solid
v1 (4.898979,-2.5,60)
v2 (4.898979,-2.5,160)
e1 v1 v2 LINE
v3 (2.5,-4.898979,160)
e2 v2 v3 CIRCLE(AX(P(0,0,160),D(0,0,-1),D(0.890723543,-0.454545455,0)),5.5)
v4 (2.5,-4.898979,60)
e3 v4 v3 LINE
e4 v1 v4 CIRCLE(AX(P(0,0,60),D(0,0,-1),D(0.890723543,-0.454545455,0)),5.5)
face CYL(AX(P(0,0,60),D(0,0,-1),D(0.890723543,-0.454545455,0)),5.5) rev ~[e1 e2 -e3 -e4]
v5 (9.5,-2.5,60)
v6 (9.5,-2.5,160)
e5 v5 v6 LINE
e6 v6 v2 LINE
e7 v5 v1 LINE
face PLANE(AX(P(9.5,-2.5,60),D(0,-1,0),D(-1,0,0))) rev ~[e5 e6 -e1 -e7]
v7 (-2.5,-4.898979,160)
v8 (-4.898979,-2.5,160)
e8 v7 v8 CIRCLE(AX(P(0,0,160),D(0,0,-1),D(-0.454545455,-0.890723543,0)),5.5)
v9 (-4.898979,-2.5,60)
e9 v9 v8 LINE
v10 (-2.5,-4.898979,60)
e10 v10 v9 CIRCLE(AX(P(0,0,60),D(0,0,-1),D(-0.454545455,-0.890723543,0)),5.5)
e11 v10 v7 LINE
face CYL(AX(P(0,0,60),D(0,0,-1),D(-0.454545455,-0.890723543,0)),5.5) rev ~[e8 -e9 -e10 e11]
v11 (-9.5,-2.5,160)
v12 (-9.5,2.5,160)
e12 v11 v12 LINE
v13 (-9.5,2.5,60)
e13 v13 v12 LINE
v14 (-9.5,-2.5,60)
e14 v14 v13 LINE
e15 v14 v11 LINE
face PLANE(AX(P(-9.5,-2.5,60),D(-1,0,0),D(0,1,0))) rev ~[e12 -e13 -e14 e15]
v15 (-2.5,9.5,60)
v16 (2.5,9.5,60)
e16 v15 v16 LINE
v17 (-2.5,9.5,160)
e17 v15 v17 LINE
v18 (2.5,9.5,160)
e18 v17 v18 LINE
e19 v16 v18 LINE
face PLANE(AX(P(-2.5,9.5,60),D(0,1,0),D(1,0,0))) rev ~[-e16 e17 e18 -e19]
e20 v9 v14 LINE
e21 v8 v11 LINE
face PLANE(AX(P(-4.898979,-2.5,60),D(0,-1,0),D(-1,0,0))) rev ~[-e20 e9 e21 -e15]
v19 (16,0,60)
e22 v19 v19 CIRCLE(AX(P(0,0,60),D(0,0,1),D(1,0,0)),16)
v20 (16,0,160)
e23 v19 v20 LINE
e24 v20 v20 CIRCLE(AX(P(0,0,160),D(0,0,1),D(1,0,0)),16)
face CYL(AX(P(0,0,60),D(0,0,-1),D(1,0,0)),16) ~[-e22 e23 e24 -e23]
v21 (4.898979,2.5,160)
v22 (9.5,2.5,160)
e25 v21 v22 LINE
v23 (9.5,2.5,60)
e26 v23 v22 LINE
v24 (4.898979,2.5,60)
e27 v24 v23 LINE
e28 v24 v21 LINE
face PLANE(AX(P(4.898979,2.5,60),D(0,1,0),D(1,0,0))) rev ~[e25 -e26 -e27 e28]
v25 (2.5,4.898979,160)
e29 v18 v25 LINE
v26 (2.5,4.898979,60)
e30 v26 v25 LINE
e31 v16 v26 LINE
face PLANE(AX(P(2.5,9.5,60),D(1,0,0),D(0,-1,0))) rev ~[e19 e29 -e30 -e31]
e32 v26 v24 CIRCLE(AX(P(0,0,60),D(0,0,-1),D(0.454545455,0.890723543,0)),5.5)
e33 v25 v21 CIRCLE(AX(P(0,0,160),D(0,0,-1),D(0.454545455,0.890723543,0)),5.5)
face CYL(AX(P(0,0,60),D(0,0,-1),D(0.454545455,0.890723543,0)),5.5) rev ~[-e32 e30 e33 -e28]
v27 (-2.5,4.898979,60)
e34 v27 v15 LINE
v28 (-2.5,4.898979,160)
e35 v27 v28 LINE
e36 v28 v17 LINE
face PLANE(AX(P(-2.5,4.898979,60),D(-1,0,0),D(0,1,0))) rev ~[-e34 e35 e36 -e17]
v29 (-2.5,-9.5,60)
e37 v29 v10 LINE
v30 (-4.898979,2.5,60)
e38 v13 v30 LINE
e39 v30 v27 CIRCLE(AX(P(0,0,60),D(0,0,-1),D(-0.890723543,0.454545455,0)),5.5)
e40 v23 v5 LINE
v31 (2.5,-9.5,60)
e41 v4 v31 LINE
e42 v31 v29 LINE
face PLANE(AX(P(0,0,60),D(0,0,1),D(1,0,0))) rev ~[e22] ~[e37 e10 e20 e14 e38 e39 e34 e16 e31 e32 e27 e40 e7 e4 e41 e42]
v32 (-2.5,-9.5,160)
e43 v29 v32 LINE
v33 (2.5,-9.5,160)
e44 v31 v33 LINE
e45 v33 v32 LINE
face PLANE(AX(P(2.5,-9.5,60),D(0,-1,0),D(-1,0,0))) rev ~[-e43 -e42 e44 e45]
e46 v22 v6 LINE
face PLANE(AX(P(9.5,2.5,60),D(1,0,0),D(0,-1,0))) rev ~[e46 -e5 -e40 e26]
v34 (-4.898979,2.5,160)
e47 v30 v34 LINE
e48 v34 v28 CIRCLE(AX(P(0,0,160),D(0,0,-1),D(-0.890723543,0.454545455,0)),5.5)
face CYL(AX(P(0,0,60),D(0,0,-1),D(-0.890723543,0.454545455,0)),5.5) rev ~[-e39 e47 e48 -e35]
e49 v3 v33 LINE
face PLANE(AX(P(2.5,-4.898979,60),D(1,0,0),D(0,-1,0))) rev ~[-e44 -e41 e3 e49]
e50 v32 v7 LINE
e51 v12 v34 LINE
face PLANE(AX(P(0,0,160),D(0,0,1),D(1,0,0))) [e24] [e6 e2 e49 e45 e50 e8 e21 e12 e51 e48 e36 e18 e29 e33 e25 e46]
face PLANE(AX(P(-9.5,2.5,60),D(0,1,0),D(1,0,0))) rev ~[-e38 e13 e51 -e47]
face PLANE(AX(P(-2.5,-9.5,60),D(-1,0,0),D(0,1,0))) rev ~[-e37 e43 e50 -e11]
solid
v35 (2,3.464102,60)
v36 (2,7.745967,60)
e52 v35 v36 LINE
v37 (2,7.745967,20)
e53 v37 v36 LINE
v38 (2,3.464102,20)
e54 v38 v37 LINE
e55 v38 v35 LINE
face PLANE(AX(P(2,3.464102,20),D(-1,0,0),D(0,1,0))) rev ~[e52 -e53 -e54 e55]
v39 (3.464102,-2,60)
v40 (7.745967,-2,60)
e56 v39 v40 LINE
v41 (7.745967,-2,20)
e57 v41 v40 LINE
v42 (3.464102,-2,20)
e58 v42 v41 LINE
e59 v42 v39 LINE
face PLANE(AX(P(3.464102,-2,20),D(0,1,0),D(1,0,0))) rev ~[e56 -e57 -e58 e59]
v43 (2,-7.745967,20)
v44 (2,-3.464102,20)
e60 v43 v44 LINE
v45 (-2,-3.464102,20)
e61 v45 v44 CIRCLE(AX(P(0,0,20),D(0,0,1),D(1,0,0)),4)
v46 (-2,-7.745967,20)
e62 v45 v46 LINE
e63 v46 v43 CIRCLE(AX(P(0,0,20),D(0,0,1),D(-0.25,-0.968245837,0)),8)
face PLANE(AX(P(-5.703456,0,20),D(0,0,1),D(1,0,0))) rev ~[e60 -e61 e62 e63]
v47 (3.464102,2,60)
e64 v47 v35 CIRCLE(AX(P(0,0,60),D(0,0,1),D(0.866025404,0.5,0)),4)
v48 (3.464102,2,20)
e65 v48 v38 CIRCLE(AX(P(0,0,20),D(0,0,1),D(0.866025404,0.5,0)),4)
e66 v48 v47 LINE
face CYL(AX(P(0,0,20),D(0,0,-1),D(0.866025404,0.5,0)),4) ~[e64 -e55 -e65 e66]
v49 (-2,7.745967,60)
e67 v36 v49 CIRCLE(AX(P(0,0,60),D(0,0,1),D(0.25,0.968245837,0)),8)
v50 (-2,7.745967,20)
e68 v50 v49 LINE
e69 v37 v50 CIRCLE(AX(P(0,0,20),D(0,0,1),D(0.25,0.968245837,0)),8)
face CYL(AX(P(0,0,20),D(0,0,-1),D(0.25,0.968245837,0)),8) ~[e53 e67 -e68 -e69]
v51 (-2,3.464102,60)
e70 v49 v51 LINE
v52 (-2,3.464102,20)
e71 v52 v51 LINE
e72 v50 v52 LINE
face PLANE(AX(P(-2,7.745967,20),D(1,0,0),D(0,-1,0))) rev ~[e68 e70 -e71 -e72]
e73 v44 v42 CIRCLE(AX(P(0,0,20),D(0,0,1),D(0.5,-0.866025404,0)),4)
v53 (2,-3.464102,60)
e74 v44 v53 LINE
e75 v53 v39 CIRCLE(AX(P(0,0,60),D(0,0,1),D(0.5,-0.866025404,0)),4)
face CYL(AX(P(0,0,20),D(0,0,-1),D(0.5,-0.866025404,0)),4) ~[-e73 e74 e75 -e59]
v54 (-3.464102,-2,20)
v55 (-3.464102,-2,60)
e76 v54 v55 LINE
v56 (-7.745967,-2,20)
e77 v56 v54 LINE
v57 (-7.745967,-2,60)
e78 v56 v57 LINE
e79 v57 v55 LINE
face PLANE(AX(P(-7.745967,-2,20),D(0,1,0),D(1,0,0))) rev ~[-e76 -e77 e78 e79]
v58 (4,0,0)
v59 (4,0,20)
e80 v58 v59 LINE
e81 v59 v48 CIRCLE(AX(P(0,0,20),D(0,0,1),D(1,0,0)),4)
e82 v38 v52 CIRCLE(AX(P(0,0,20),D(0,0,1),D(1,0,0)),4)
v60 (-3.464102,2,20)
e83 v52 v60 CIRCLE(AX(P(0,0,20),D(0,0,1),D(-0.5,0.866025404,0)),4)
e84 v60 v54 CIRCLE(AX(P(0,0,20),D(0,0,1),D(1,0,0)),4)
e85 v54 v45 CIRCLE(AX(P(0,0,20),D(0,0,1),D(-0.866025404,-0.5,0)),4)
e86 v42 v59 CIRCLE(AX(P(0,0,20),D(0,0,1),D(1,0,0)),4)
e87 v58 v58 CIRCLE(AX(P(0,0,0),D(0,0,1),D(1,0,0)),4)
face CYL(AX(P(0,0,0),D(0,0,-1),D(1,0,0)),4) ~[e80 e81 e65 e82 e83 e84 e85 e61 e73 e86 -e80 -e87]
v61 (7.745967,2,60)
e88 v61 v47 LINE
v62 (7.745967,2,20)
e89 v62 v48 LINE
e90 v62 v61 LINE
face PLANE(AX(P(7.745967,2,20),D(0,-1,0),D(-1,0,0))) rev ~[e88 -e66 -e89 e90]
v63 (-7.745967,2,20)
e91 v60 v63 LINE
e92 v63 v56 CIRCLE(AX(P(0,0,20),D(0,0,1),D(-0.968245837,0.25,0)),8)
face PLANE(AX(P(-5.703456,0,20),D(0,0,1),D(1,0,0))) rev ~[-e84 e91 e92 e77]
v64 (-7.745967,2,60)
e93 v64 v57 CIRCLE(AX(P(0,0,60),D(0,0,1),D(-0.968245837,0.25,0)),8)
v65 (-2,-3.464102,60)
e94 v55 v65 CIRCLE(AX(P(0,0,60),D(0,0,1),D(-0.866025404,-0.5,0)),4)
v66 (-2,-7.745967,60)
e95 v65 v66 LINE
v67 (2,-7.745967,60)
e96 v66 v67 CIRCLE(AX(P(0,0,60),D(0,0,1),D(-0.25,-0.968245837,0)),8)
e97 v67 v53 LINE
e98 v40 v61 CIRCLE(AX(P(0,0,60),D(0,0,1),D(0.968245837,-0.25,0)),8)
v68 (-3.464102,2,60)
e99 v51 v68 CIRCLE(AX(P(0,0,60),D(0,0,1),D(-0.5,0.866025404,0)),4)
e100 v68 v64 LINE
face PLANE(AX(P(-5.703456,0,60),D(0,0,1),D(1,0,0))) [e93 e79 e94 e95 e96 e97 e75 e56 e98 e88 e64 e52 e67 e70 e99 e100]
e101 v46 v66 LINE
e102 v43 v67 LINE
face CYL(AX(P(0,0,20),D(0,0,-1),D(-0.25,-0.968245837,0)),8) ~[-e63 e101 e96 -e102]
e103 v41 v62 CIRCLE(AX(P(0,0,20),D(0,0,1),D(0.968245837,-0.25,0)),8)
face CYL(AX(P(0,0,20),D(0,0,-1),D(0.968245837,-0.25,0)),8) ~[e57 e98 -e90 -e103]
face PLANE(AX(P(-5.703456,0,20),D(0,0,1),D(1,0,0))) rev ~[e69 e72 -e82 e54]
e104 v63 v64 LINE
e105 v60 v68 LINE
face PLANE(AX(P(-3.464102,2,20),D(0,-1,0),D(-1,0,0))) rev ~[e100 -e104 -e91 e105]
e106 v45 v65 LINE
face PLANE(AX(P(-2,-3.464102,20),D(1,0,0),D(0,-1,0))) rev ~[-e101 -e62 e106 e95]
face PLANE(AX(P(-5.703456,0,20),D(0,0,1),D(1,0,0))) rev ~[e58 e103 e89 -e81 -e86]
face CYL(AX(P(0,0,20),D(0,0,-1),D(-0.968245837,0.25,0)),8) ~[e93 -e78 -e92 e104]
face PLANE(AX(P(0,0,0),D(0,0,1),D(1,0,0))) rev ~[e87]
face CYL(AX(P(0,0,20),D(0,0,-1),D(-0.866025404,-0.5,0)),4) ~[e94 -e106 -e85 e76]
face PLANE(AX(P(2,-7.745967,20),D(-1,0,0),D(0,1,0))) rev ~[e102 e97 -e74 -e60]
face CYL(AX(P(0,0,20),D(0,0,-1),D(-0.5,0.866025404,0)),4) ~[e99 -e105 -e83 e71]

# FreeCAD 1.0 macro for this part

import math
import FreeCAD as App
import Part
import Sketcher

V = App.Vector

doc = App.newDocument("Part")
body = doc.addObject("PartDesign::Body", "Body")

# Sketch on XY plane
sketch1 = body.newObject("Sketcher::SketchObject", "Sketch")
sketch1.AttachmentSupport = (doc.getObject("XY_Plane"), [""])
sketch1.MapMode = "FlatFace"
sketch1.addGeometry(Part.Circle(V(0, 0, 0), V(0, 0, 1), 4), False)
sketch1.addConstraint([
    Sketcher.Constraint("Coincident", 0, 3, -1, 1),
    Sketcher.Constraint("Diameter", 0, 8.0),
])
pad1 = body.newObject("PartDesign::Pad", "Pad")
pad1.Profile = sketch1
pad1.Length = 20

# Sketch on XY plane
sketch2 = body.newObject("Sketcher::SketchObject", "Sketch001")
sketch2.AttachmentSupport = (doc.getObject("XY_Plane"), [""])
sketch2.MapMode = "FlatFace"
sketch2.AttachmentOffset = App.Placement(V(0, 0, 20), App.Rotation())
sketch2.addGeometry([
    Part.LineSegment(V(-3.464102, 2, 0), V(-7.745967, 2, 0)),  # 0
    Part.ArcOfCircle(Part.Circle(V(0, 0, 0), V(0, 0, 1), 8), math.radians(165.522488), math.radians(194.477512)),  # 1
    Part.LineSegment(V(-7.745967, -2, 0), V(-3.464102, -2, 0)),  # 2
    Part.ArcOfCircle(Part.Circle(V(0, 0, 0), V(0, 0, 1), 4), math.radians(-150), math.radians(-120)),  # 3
    Part.LineSegment(V(-2, -3.464102, 0), V(-2, -7.745967, 0)),  # 4
    Part.ArcOfCircle(Part.Circle(V(0, 0, 0), V(0, 0, 1), 8), math.radians(-104.477512), math.radians(-75.522488)),  # 5
    Part.LineSegment(V(2, -7.745967, 0), V(2, -3.464102, 0)),  # 6
    Part.ArcOfCircle(Part.Circle(V(0, 0, 0), V(0, 0, 1), 4), math.radians(-60), math.radians(-30)),  # 7
    Part.LineSegment(V(3.464102, -2, 0), V(7.745967, -2, 0)),  # 8
    Part.ArcOfCircle(Part.Circle(V(0, 0, 0), V(0, 0, 1), 8), math.radians(-14.477512), math.radians(14.477512)),  # 9
    Part.LineSegment(V(7.745967, 2, 0), V(3.464102, 2, 0)),  # 10
    Part.ArcOfCircle(Part.Circle(V(0, 0, 0), V(0, 0, 1), 4), math.radians(30), math.radians(60)),  # 11
    Part.LineSegment(V(2, 3.464102, 0), V(2, 7.745967, 0)),  # 12
    Part.ArcOfCircle(Part.Circle(V(0, 0, 0), V(0, 0, 1), 8), math.radians(75.522488), math.radians(104.477512)),  # 13
    Part.LineSegment(V(-2, 7.745967, 0), V(-2, 3.464102, 0)),  # 14
    Part.ArcOfCircle(Part.Circle(V(0, 0, 0), V(0, 0, 1), 4), math.radians(120), math.radians(150)),  # 15
], False)
sketch2.addConstraint([
    Sketcher.Constraint("Coincident", 0, 2, 1, 1),
    Sketcher.Constraint("Coincident", 1, 2, 2, 1),
    Sketcher.Constraint("Coincident", 2, 2, 3, 1),
    Sketcher.Constraint("Coincident", 3, 2, 4, 1),
    Sketcher.Constraint("Coincident", 4, 2, 5, 1),
    Sketcher.Constraint("Coincident", 5, 2, 6, 1),
    Sketcher.Constraint("Coincident", 6, 2, 7, 1),
    Sketcher.Constraint("Coincident", 7, 2, 8, 1),
    Sketcher.Constraint("Coincident", 8, 2, 9, 1),
    Sketcher.Constraint("Coincident", 9, 2, 10, 1),
    Sketcher.Constraint("Coincident", 10, 2, 11, 1),
    Sketcher.Constraint("Coincident", 11, 2, 12, 1),
    Sketcher.Constraint("Coincident", 12, 2, 13, 1),
    Sketcher.Constraint("Coincident", 13, 2, 14, 1),
    Sketcher.Constraint("Coincident", 14, 2, 15, 1),
    Sketcher.Constraint("Coincident", 15, 2, 0, 1),
    Sketcher.Constraint("Horizontal", 0),
    Sketcher.Constraint("Horizontal", 2),
    Sketcher.Constraint("Vertical", 4),
    Sketcher.Constraint("Vertical", 6),
    Sketcher.Constraint("Horizontal", 8),
    Sketcher.Constraint("Horizontal", 10),
    Sketcher.Constraint("Vertical", 12),
    Sketcher.Constraint("Vertical", 14),
    Sketcher.Constraint("Coincident", 1, 3, -1, 1),
    Sketcher.Constraint("Coincident", 3, 3, -1, 1),
    Sketcher.Constraint("Coincident", 5, 3, -1, 1),
    Sketcher.Constraint("Coincident", 7, 3, -1, 1),
    Sketcher.Constraint("Coincident", 9, 3, -1, 1),
    Sketcher.Constraint("Coincident", 11, 3, -1, 1),
    Sketcher.Constraint("Coincident", 13, 3, -1, 1),
    Sketcher.Constraint("Coincident", 15, 3, -1, 1),
    Sketcher.Constraint("Equal", 1, 5),
    Sketcher.Constraint("Equal", 3, 7),
    Sketcher.Constraint("Equal", 5, 9),
    Sketcher.Constraint("Equal", 7, 11),
    Sketcher.Constraint("Equal", 9, 13),
    Sketcher.Constraint("Equal", 11, 15),
    Sketcher.Constraint("Horizontal", 4, 2, 5, 2),
    Sketcher.Constraint("Horizontal", 2, 2, 7, 2),
    Sketcher.Constraint("Horizontal", 0, 2, 9, 2),
    Sketcher.Constraint("Horizontal", 12, 2, 13, 2),
    Sketcher.Constraint("Vertical", 0, 2, 1, 2),
    Sketcher.Constraint("Vertical", 6, 2, 11, 2),
    Sketcher.Constraint("Equal", 10, 4),
    Sketcher.Constraint("Radius", 1, 8.0),
    Sketcher.Constraint("Radius", 3, 4.0),
    Sketcher.Constraint("DistanceY", -1, 1, 0, 2, 2.0),
])
pad2 = body.newObject("PartDesign::Pad", "Pad001")
pad2.Profile = sketch2
pad2.Length = 40
body2 = doc.addObject("PartDesign::Body", "Body001")

# Sketch on XY plane
sketch3 = body2.newObject("Sketcher::SketchObject", "Sketch002")
sketch3.AttachmentSupport = (doc.getObject("XY_Plane001"), [""])
sketch3.MapMode = "FlatFace"
sketch3.AttachmentOffset = App.Placement(V(0, 0, 60), App.Rotation())
sketch3.addGeometry([
    Part.Circle(V(0, 0, 0), V(0, 0, 1), 16),  # 0
    Part.LineSegment(V(2.5, 9.5, 0), V(2.5, 4.898979, 0)),  # 1
    Part.ArcOfCircle(Part.Circle(V(0, 0, 0), V(0, 0, 1), 5.5), math.radians(27.035692), math.radians(62.964308)),  # 2
    Part.LineSegment(V(4.898979, 2.5, 0), V(9.5, 2.5, 0)),  # 3
    Part.LineSegment(V(9.5, 2.5, 0), V(9.5, -2.5, 0)),  # 4
    Part.LineSegment(V(9.5, -2.5, 0), V(4.898979, -2.5, 0)),  # 5
    Part.ArcOfCircle(Part.Circle(V(0, 0, 0), V(0, 0, 1), 5.5), math.radians(-62.964308), math.radians(-27.035692)),  # 6
    Part.LineSegment(V(2.5, -4.898979, 0), V(2.5, -9.5, 0)),  # 7
    Part.LineSegment(V(2.5, -9.5, 0), V(-2.5, -9.5, 0)),  # 8
    Part.LineSegment(V(-2.5, -9.5, 0), V(-2.5, -4.898979, 0)),  # 9
    Part.ArcOfCircle(Part.Circle(V(0, 0, 0), V(0, 0, 1), 5.5), math.radians(-152.964308), math.radians(-117.035692)),  # 10
    Part.LineSegment(V(-4.898979, -2.5, 0), V(-9.5, -2.5, 0)),  # 11
    Part.LineSegment(V(-9.5, -2.5, 0), V(-9.5, 2.5, 0)),  # 12
    Part.LineSegment(V(-9.5, 2.5, 0), V(-4.898979, 2.5, 0)),  # 13
    Part.ArcOfCircle(Part.Circle(V(0, 0, 0), V(0, 0, 1), 5.5), math.radians(117.035692), math.radians(152.964308)),  # 14
    Part.LineSegment(V(-2.5, 4.898979, 0), V(-2.5, 9.5, 0)),  # 15
    Part.LineSegment(V(-2.5, 9.5, 0), V(2.5, 9.5, 0)),  # 16
], False)
sketch3.addConstraint([
    Sketcher.Constraint("Coincident", 1, 2, 2, 2),
    Sketcher.Constraint("Coincident", 2, 1, 3, 1),
    Sketcher.Constraint("Coincident", 3, 2, 4, 1),
    Sketcher.Constraint("Coincident", 4, 2, 5, 1),
    Sketcher.Constraint("Coincident", 5, 2, 6, 2),
    Sketcher.Constraint("Coincident", 6, 1, 7, 1),
    Sketcher.Constraint("Coincident", 7, 2, 8, 1),
    Sketcher.Constraint("Coincident", 8, 2, 9, 1),
    Sketcher.Constraint("Coincident", 9, 2, 10, 2),
    Sketcher.Constraint("Coincident", 10, 1, 11, 1),
    Sketcher.Constraint("Coincident", 11, 2, 12, 1),
    Sketcher.Constraint("Coincident", 12, 2, 13, 1),
    Sketcher.Constraint("Coincident", 13, 2, 14, 2),
    Sketcher.Constraint("Coincident", 14, 1, 15, 1),
    Sketcher.Constraint("Coincident", 15, 2, 16, 1),
    Sketcher.Constraint("Coincident", 16, 2, 1, 1),
    Sketcher.Constraint("Vertical", 1),
    Sketcher.Constraint("Horizontal", 3),
    Sketcher.Constraint("Vertical", 4),
    Sketcher.Constraint("Horizontal", 5),
    Sketcher.Constraint("Vertical", 7),
    Sketcher.Constraint("Horizontal", 8),
    Sketcher.Constraint("Vertical", 9),
    Sketcher.Constraint("Horizontal", 11),
    Sketcher.Constraint("Vertical", 12),
    Sketcher.Constraint("Horizontal", 13),
    Sketcher.Constraint("Vertical", 15),
    Sketcher.Constraint("Horizontal", 16),
    Sketcher.Constraint("Coincident", 0, 3, -1, 1),
    Sketcher.Constraint("Coincident", 2, 3, -1, 1),
    Sketcher.Constraint("Coincident", 6, 3, -1, 1),
    Sketcher.Constraint("Coincident", 10, 3, -1, 1),
    Sketcher.Constraint("Coincident", 14, 3, -1, 1),
    Sketcher.Constraint("Equal", 2, 6),
    Sketcher.Constraint("Equal", 6, 10),
    Sketcher.Constraint("Equal", 10, 14),
    Sketcher.Constraint("Symmetric", 3, 2, 11, 2, -1, 1),
    Sketcher.Constraint("Symmetric", 7, 2, 15, 2, -1, 1),
    Sketcher.Constraint("Horizontal", 6, 1, 9, 2),
    Sketcher.Constraint("Horizontal", 5, 2, 10, 1),
    Sketcher.Constraint("Horizontal", 3, 2, 12, 2),
    Sketcher.Constraint("Horizontal", 1, 2, 14, 1),
    Sketcher.Constraint("Equal", 13, 1),
    Sketcher.Constraint("Equal", 16, 4),
    Sketcher.Constraint("Diameter", 0, 32.0),
    Sketcher.Constraint("Radius", 2, 5.5),
    Sketcher.Constraint("DistanceX", 8, 2, 8, 1, 5.0),
    Sketcher.Constraint("DistanceX", 1, 2, 3, 2, 7.0),
])
pad3 = body2.newObject("PartDesign::Pad", "Pad002")
pad3.Profile = sketch3
pad3.Length = 100

doc.recompute()
